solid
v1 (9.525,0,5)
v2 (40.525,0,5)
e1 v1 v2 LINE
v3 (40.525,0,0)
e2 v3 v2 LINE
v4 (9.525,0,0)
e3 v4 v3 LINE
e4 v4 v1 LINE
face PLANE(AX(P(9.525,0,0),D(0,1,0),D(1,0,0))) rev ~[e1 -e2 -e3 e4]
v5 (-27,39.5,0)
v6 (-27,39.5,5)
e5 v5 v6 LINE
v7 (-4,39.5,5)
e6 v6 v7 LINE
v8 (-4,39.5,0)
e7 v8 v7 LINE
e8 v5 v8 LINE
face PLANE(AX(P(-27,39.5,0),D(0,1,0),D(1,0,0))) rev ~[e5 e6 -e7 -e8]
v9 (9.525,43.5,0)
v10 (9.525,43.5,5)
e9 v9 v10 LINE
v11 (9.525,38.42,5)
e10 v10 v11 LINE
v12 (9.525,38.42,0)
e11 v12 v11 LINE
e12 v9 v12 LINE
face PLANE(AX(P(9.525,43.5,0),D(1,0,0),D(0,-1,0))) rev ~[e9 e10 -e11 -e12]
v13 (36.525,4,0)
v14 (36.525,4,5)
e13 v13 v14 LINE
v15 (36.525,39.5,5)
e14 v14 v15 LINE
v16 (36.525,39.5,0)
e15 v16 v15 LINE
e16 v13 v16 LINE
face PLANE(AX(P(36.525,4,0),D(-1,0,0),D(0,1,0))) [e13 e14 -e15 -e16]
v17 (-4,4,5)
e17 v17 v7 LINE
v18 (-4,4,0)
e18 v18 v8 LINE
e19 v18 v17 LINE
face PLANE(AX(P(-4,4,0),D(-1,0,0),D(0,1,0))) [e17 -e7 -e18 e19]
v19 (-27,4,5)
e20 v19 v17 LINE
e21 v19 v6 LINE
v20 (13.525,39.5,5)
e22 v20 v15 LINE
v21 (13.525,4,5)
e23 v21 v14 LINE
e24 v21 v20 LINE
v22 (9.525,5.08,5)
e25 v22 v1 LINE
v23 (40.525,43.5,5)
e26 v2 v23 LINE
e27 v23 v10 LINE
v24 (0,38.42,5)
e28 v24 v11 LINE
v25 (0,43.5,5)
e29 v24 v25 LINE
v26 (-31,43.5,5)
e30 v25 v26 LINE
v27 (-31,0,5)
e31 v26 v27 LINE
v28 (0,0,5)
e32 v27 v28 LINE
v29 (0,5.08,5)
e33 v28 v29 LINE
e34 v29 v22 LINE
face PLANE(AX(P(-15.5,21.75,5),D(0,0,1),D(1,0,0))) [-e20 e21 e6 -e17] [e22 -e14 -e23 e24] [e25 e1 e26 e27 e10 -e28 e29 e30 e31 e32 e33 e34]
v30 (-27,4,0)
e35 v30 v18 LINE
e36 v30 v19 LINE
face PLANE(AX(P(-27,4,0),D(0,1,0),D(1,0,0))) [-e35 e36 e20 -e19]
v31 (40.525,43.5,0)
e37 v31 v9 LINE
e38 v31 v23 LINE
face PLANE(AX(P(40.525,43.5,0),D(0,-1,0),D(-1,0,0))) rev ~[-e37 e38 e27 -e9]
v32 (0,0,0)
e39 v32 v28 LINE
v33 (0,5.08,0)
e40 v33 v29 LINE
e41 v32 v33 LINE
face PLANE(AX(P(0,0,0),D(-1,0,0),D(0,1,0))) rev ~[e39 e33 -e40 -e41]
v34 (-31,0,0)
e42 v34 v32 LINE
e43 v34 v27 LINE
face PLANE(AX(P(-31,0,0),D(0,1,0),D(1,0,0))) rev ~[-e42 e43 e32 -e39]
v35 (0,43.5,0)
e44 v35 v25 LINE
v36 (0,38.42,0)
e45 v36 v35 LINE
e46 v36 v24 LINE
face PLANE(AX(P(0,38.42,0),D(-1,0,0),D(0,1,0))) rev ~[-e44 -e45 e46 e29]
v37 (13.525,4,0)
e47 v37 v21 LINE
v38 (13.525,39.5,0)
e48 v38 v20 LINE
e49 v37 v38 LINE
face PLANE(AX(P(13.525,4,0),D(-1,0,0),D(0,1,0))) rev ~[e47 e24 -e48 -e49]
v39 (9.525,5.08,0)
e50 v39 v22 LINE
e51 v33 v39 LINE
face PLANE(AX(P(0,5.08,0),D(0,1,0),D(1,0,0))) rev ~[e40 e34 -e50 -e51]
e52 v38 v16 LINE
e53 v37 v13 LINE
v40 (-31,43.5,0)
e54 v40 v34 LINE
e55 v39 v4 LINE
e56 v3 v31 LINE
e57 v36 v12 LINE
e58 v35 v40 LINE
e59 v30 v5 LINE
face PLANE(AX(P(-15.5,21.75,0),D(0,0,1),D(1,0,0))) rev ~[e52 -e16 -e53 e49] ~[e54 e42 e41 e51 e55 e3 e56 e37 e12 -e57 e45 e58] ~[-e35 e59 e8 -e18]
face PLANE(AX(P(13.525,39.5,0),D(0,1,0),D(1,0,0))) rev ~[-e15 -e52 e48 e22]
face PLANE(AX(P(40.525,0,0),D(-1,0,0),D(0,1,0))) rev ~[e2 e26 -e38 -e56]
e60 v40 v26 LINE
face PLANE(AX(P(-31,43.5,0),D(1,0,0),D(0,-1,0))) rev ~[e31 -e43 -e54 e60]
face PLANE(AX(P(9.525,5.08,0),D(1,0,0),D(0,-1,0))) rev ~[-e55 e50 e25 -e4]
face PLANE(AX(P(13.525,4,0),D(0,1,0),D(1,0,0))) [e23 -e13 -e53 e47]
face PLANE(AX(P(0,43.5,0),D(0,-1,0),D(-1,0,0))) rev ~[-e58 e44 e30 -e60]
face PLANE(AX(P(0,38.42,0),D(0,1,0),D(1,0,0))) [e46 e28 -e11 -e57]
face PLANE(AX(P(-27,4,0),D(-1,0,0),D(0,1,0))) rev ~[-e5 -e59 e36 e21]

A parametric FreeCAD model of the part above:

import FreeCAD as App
import Part
import Sketcher

V = App.Vector


def add_polygon(sketch, points):
    """Adds a closed chain of lines whose ends are joined by coincident constraints."""
    first, n = sketch.GeometryCount, len(points)
    for a, b in zip(points, points[1:] + points[:1]):
        sketch.addGeometry(Part.LineSegment(App.Vector(*a, 0), App.Vector(*b, 0)), False)
    for i in range(n):
        sketch.addConstraint(Sketcher.Constraint("Coincident", first + i, 2, first + (i + 1) % n, 1))

doc = App.newDocument("Part")
body = doc.addObject("PartDesign::Body", "Body")

# Sketch on XY plane
sketch1 = body.newObject("Sketcher::SketchObject", "Sketch")
sketch1.AttachmentSupport = (doc.getObject("XY_Plane"), [""])
sketch1.MapMode = "FlatFace"
add_polygon(sketch1, [(-31, 0), (0, 0), (0, 5), (10, 5), (10, 0), (41, 0), (41, 44), (10, 44), (10, 38), (0, 38), (0, 44), (-31, 44)])  # lines 0-11
add_polygon(sketch1, [(-4, 4), (-27, 4), (-27, 40), (-4, 40)])  # lines 12-15
add_polygon(sketch1, [(37, 4), (14, 4), (14, 40), (37, 40)])  # lines 16-19
sketch1.addConstraint(Sketcher.Constraint("Horizontal", 0))
sketch1.addConstraint(Sketcher.Constraint("Vertical", 1))
sketch1.addConstraint(Sketcher.Constraint("Horizontal", 2))
sketch1.addConstraint(Sketcher.Constraint("Vertical", 3))
sketch1.addConstraint(Sketcher.Constraint("Horizontal", 4))
sketch1.addConstraint(Sketcher.Constraint("Vertical", 5))
sketch1.addConstraint(Sketcher.Constraint("Horizontal", 6))
sketch1.addConstraint(Sketcher.Constraint("Vertical", 7))
sketch1.addConstraint(Sketcher.Constraint("Horizontal", 8))
sketch1.addConstraint(Sketcher.Constraint("Vertical", 9))
sketch1.addConstraint(Sketcher.Constraint("Horizontal", 10))
sketch1.addConstraint(Sketcher.Constraint("Vertical", 11))
sketch1.addConstraint(Sketcher.Constraint("Horizontal", 12))
sketch1.addConstraint(Sketcher.Constraint("Vertical", 13))
sketch1.addConstraint(Sketcher.Constraint("Horizontal", 14))
sketch1.addConstraint(Sketcher.Constraint("Vertical", 15))
sketch1.addConstraint(Sketcher.Constraint("Horizontal", 16))
sketch1.addConstraint(Sketcher.Constraint("Vertical", 17))
sketch1.addConstraint(Sketcher.Constraint("Horizontal", 18))
sketch1.addConstraint(Sketcher.Constraint("Vertical", 19))
sketch1.addConstraint(Sketcher.Constraint("Coincident", 0, 2, -1, 1))
sketch1.addConstraint(Sketcher.Constraint("PointOnObject", 3, 2, -1))
sketch1.addConstraint(Sketcher.Constraint("PointOnObject", 8, 2, -2))
sketch1.addConstraint(Sketcher.Constraint("Horizontal", 6, 2, 9, 2))
sketch1.addConstraint(Sketcher.Constraint("Horizontal", 15, 2, 16, 2))
sketch1.addConstraint(Sketcher.Constraint("Horizontal", 14, 2, 17, 2))
sketch1.addConstraint(Sketcher.Constraint("Vertical", 3, 2, 6, 2))
sketch1.addConstraint(Sketcher.Constraint("Equal", 0, 4))
sketch1.addConstraint(Sketcher.Constraint("Equal", 14, 16))
sketch1.addConstraint(Sketcher.Constraint("Equal", 3, 7))
sketch1.addConstraint(Sketcher.Constraint("DistanceX", 0, 1, 0, 2, 31.0))
sketch1.addConstraint(Sketcher.Constraint("DistanceX", 12, 2, 12, 1, 23.0))
sketch1.addConstraint(Sketcher.Constraint("DistanceY", 5, 1, 5, 2, 43.5))
sketch1.addConstraint(Sketcher.Constraint("DistanceY", 13, 1, 13, 2, 35.5))
sketch1.addConstraint(Sketcher.Constraint("DistanceX", 12, 2, -1, 1, 27.0))
sketch1.addConstraint(Sketcher.Constraint("DistanceY", -1, 1, 12, 2, 4.0))
sketch1.addConstraint(Sketcher.Constraint("DistanceX", 2, 2, 16, 2, 4.0))
sketch1.addConstraint(Sketcher.Constraint("DistanceY", 1, 1, 1, 2, 5.08))
sketch1.addConstraint(Sketcher.Constraint("DistanceX", 2, 1, 2, 2, 9.525))
pad1 = body.newObject("PartDesign::Pad", "Pad")
pad1.Profile = sketch1
pad1.Length = 5

doc.recompute()
